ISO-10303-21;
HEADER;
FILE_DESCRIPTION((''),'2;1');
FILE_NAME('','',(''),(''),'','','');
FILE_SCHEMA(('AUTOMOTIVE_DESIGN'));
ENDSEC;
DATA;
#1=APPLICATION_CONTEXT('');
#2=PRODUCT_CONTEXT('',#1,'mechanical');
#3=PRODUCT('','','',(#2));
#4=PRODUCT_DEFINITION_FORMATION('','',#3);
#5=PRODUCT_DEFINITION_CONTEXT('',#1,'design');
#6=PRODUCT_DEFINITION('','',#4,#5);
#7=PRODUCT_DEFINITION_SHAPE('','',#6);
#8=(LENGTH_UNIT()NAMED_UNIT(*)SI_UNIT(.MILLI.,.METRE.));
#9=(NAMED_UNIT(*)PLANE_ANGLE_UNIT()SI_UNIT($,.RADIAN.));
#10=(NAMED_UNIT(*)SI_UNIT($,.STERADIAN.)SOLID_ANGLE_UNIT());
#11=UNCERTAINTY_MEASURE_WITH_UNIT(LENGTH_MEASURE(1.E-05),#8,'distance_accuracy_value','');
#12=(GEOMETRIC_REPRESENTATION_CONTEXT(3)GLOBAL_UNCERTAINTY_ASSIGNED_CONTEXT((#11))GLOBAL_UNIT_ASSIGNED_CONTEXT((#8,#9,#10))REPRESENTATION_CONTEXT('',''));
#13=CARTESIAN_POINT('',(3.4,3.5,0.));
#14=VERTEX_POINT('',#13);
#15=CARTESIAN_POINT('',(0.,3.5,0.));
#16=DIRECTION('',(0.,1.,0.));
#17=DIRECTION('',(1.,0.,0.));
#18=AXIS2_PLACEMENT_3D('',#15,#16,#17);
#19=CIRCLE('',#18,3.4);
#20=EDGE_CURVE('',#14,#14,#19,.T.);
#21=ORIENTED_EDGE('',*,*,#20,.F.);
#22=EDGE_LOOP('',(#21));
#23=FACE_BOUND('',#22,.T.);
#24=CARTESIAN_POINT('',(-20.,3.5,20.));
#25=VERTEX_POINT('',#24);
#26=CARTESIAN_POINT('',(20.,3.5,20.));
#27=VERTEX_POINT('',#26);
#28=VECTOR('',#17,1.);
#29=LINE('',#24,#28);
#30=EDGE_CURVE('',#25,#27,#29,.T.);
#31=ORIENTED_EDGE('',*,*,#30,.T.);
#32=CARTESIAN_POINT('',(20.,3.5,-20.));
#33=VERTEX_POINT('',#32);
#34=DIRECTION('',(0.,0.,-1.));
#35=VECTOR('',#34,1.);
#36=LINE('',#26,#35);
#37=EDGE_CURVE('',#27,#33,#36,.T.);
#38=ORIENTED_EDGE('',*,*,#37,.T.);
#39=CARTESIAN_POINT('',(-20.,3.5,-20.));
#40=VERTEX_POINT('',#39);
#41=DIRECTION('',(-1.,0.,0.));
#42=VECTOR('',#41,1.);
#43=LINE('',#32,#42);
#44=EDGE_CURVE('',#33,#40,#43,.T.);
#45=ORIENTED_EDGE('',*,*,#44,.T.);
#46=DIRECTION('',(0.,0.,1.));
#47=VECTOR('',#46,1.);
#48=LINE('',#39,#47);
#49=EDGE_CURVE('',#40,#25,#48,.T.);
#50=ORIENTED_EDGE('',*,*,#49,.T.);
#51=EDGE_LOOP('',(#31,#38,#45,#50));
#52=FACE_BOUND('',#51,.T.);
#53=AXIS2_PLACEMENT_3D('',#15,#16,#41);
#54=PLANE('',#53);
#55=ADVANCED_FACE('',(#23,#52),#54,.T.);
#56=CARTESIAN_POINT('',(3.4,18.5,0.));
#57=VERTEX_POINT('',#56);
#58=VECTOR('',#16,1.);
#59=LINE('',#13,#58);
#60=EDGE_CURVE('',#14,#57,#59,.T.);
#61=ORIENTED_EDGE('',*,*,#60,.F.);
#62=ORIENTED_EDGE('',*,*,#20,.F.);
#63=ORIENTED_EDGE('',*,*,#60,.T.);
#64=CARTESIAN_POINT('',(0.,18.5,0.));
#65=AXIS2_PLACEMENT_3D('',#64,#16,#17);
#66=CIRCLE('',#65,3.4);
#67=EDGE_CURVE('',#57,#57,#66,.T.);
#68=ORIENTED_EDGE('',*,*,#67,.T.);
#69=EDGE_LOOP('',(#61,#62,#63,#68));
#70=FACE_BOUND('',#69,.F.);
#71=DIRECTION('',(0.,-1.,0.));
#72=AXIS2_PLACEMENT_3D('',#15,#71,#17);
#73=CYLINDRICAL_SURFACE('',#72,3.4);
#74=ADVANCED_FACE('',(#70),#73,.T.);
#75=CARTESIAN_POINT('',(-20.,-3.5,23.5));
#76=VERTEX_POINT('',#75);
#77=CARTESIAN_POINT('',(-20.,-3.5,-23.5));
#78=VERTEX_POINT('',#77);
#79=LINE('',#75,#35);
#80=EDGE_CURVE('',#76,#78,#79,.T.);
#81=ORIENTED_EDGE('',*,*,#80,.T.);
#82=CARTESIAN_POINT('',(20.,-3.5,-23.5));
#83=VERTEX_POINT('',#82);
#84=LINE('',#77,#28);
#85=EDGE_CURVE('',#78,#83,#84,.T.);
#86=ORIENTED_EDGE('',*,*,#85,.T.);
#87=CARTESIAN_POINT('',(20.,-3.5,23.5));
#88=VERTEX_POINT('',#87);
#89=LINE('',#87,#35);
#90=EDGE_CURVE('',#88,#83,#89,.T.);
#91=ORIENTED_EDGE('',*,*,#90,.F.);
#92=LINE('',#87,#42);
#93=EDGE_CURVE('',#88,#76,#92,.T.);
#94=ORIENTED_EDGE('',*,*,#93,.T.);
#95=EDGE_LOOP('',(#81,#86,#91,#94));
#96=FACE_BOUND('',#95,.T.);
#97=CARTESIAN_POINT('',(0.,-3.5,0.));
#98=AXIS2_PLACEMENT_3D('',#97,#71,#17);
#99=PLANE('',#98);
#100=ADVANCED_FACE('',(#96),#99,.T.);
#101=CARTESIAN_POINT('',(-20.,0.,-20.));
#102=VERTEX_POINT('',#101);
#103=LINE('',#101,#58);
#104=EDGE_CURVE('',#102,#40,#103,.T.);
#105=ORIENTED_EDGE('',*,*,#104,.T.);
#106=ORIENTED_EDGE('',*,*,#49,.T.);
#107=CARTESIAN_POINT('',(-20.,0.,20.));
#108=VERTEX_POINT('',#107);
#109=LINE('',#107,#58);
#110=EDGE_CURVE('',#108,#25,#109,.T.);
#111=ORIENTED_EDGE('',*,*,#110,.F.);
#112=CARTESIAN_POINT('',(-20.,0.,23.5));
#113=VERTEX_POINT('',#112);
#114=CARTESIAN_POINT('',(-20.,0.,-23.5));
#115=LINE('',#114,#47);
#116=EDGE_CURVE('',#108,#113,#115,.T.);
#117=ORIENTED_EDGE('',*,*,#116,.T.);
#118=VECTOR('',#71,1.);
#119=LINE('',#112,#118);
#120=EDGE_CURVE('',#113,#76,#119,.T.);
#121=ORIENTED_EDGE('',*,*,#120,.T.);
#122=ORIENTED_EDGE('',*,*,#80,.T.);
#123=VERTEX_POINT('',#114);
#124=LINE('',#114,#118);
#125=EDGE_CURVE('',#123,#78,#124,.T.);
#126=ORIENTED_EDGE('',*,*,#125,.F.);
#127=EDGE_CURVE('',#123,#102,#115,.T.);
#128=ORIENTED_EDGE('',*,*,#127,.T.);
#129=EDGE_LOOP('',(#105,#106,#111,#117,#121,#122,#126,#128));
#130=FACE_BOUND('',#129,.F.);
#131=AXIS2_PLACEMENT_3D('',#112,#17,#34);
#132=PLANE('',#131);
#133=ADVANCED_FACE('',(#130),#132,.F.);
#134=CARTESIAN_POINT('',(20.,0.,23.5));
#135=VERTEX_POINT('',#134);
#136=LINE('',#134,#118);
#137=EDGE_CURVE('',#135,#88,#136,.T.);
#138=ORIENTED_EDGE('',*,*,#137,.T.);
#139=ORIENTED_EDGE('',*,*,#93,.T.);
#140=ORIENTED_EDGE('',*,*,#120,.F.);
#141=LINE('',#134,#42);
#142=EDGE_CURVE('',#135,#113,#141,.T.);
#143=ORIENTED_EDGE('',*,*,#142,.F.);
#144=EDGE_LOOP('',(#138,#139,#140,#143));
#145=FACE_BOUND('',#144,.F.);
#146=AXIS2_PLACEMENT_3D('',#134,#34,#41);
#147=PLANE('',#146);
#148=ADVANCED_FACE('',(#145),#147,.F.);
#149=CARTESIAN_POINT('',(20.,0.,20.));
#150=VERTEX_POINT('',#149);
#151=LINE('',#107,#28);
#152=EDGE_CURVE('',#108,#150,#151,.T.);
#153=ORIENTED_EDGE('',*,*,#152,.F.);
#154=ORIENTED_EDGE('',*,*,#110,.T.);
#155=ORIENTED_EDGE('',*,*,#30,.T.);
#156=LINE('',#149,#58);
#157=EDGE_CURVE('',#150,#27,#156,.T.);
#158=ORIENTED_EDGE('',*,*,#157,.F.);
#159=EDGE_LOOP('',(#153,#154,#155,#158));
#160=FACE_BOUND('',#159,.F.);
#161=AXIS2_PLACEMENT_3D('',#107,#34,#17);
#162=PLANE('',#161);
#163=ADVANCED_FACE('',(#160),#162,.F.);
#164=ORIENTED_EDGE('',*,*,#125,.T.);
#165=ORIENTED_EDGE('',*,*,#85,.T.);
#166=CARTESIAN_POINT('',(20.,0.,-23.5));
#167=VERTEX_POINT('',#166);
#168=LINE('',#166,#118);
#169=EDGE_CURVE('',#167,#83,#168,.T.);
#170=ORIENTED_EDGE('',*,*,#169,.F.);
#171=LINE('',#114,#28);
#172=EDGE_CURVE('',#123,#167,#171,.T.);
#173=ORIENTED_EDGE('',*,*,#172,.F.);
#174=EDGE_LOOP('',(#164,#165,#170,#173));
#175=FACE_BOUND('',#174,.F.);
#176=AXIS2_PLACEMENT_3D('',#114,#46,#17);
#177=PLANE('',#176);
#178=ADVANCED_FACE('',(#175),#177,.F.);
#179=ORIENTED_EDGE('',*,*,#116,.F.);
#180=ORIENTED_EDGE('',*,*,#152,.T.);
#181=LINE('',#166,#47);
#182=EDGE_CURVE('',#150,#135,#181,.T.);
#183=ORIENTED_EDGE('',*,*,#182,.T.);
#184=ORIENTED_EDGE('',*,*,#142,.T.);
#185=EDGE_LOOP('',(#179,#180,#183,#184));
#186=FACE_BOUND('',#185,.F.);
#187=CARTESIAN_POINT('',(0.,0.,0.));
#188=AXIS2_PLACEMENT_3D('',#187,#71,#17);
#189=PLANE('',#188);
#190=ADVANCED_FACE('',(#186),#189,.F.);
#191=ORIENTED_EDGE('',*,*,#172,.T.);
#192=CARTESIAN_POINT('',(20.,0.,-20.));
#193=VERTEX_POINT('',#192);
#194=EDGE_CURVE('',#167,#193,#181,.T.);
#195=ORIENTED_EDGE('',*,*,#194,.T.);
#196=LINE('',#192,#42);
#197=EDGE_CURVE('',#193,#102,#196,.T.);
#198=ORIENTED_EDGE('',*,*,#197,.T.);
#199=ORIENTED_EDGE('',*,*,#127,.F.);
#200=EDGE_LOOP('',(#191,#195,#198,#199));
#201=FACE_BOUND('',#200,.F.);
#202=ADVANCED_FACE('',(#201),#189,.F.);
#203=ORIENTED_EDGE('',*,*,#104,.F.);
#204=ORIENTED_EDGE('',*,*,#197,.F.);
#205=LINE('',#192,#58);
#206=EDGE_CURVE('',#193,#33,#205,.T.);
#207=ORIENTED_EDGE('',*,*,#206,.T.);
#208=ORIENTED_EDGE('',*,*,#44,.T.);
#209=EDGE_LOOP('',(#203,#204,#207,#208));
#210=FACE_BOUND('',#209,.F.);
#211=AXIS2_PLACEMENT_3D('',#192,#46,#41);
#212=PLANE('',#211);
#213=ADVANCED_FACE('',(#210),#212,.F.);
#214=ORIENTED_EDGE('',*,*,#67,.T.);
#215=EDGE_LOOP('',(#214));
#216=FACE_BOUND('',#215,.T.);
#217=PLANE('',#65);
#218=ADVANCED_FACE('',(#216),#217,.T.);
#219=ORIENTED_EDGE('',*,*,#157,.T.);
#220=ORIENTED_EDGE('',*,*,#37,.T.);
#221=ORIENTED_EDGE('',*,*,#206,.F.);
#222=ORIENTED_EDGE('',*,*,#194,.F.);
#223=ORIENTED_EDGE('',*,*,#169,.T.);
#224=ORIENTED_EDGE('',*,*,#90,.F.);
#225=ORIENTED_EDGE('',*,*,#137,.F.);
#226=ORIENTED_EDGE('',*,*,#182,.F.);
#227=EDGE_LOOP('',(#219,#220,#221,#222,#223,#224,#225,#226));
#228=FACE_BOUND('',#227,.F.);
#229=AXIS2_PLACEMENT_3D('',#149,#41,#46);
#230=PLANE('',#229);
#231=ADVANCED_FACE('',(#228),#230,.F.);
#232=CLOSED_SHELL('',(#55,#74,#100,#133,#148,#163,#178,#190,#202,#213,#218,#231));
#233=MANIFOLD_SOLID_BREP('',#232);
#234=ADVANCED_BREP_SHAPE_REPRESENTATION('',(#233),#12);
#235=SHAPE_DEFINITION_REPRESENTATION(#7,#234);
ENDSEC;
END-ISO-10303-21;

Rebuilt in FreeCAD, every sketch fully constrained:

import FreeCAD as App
import Part
import Sketcher
Q = App.Units.Quantity

doc = App.newDocument("Part")
body = doc.addObject("PartDesign::Body", "Body")

sketch1 = doc.addObject("Sketcher::SketchObject", "Sketch")
body.addObject(sketch1)
sketch1.AttachmentSupport = (doc.XZ_Plane, [""])
sketch1.MapMode = "FlatFace"
sketch1.addGeometry([
    Part.LineSegment(App.Vector(-20, -20, 0), App.Vector(-20, 20, 0)),
    Part.LineSegment(App.Vector(-20, 20, 0), App.Vector(20, 20, 0)),
    Part.LineSegment(App.Vector(20, 20, 0), App.Vector(20, -20, 0)),
    Part.LineSegment(App.Vector(20, -20, 0), App.Vector(-20, -20, 0)),
], False)
sketch1.addConstraint([
    Sketcher.Constraint("Coincident", 0, 2, 1, 1),
    Sketcher.Constraint("Coincident", 1, 2, 2, 1),
    Sketcher.Constraint("Coincident", 2, 2, 3, 1),
    Sketcher.Constraint("Coincident", 3, 2, 0, 1),
    Sketcher.Constraint("Vertical", 0),
    Sketcher.Constraint("Horizontal", 1),
    Sketcher.Constraint("Vertical", 2),
    Sketcher.Constraint("Horizontal", 3),
    Sketcher.Constraint("Symmetric", 0, 2, 2, 2, -1, 1),
    Sketcher.Constraint("Equal", 3, 0),
    Sketcher.Constraint("DistanceX", 1, 1, 1, 2, Q("40 mm")),
])
pad1 = doc.addObject("PartDesign::Pad", "Pad")
body.addObject(pad1)
pad1.Profile = sketch1
pad1.Length = 3.5
pad1.Reversed = True

sketch2 = doc.addObject("Sketcher::SketchObject", "Sketch001")
body.addObject(sketch2)
sketch2.AttachmentSupport = (doc.XZ_Plane, [""])
sketch2.MapMode = "FlatFace"
sketch2.addGeometry([
    Part.LineSegment(App.Vector(20, 24, 0), App.Vector(-20, 24, 0)),
    Part.LineSegment(App.Vector(-20, 24, 0), App.Vector(-20, -24, 0)),
    Part.LineSegment(App.Vector(-20, -24, 0), App.Vector(20, -24, 0)),
    Part.LineSegment(App.Vector(20, -24, 0), App.Vector(20, 24, 0)),
], False)
sketch2.addConstraint([
    Sketcher.Constraint("Coincident", 0, 2, 1, 1),
    Sketcher.Constraint("Coincident", 1, 2, 2, 1),
    Sketcher.Constraint("Coincident", 2, 2, 3, 1),
    Sketcher.Constraint("Coincident", 3, 2, 0, 1),
    Sketcher.Constraint("Horizontal", 0),
    Sketcher.Constraint("Vertical", 1),
    Sketcher.Constraint("Horizontal", 2),
    Sketcher.Constraint("Vertical", 3),
    Sketcher.Constraint("Symmetric", 0, 2, 2, 2, -1, 1),
    Sketcher.Constraint("DistanceX", 0, 2, 0, 1, Q("40 mm")),
    Sketcher.Constraint("DistanceY", 1, 2, 1, 1, Q("47 mm")),
])
pad2 = doc.addObject("PartDesign::Pad", "Pad001")
body.addObject(pad2)
pad2.Profile = sketch2
pad2.Length = 3.5

sketch3 = doc.addObject("Sketcher::SketchObject", "Sketch002")
body.addObject(sketch3)
sketch3.AttachmentSupport = (doc.XZ_Plane, [""])
sketch3.MapMode = "FlatFace"
sketch3.AttachmentOffset = App.Placement(App.Vector(0, 0, -3.5), App.Rotation())
sketch3.addGeometry(Part.Circle(App.Vector(0, 0, 0), App.Vector(0, 0, 1), 3.4), False)
sketch3.addConstraint([
    Sketcher.Constraint("Coincident", 0, 3, -1, 1),
    Sketcher.Constraint("Diameter", 0, Q("6.8 mm")),
])
pad3 = doc.addObject("PartDesign::Pad", "Pad002")
body.addObject(pad3)
pad3.Profile = sketch3
pad3.Length = 15
pad3.Reversed = True

doc.recompute()
